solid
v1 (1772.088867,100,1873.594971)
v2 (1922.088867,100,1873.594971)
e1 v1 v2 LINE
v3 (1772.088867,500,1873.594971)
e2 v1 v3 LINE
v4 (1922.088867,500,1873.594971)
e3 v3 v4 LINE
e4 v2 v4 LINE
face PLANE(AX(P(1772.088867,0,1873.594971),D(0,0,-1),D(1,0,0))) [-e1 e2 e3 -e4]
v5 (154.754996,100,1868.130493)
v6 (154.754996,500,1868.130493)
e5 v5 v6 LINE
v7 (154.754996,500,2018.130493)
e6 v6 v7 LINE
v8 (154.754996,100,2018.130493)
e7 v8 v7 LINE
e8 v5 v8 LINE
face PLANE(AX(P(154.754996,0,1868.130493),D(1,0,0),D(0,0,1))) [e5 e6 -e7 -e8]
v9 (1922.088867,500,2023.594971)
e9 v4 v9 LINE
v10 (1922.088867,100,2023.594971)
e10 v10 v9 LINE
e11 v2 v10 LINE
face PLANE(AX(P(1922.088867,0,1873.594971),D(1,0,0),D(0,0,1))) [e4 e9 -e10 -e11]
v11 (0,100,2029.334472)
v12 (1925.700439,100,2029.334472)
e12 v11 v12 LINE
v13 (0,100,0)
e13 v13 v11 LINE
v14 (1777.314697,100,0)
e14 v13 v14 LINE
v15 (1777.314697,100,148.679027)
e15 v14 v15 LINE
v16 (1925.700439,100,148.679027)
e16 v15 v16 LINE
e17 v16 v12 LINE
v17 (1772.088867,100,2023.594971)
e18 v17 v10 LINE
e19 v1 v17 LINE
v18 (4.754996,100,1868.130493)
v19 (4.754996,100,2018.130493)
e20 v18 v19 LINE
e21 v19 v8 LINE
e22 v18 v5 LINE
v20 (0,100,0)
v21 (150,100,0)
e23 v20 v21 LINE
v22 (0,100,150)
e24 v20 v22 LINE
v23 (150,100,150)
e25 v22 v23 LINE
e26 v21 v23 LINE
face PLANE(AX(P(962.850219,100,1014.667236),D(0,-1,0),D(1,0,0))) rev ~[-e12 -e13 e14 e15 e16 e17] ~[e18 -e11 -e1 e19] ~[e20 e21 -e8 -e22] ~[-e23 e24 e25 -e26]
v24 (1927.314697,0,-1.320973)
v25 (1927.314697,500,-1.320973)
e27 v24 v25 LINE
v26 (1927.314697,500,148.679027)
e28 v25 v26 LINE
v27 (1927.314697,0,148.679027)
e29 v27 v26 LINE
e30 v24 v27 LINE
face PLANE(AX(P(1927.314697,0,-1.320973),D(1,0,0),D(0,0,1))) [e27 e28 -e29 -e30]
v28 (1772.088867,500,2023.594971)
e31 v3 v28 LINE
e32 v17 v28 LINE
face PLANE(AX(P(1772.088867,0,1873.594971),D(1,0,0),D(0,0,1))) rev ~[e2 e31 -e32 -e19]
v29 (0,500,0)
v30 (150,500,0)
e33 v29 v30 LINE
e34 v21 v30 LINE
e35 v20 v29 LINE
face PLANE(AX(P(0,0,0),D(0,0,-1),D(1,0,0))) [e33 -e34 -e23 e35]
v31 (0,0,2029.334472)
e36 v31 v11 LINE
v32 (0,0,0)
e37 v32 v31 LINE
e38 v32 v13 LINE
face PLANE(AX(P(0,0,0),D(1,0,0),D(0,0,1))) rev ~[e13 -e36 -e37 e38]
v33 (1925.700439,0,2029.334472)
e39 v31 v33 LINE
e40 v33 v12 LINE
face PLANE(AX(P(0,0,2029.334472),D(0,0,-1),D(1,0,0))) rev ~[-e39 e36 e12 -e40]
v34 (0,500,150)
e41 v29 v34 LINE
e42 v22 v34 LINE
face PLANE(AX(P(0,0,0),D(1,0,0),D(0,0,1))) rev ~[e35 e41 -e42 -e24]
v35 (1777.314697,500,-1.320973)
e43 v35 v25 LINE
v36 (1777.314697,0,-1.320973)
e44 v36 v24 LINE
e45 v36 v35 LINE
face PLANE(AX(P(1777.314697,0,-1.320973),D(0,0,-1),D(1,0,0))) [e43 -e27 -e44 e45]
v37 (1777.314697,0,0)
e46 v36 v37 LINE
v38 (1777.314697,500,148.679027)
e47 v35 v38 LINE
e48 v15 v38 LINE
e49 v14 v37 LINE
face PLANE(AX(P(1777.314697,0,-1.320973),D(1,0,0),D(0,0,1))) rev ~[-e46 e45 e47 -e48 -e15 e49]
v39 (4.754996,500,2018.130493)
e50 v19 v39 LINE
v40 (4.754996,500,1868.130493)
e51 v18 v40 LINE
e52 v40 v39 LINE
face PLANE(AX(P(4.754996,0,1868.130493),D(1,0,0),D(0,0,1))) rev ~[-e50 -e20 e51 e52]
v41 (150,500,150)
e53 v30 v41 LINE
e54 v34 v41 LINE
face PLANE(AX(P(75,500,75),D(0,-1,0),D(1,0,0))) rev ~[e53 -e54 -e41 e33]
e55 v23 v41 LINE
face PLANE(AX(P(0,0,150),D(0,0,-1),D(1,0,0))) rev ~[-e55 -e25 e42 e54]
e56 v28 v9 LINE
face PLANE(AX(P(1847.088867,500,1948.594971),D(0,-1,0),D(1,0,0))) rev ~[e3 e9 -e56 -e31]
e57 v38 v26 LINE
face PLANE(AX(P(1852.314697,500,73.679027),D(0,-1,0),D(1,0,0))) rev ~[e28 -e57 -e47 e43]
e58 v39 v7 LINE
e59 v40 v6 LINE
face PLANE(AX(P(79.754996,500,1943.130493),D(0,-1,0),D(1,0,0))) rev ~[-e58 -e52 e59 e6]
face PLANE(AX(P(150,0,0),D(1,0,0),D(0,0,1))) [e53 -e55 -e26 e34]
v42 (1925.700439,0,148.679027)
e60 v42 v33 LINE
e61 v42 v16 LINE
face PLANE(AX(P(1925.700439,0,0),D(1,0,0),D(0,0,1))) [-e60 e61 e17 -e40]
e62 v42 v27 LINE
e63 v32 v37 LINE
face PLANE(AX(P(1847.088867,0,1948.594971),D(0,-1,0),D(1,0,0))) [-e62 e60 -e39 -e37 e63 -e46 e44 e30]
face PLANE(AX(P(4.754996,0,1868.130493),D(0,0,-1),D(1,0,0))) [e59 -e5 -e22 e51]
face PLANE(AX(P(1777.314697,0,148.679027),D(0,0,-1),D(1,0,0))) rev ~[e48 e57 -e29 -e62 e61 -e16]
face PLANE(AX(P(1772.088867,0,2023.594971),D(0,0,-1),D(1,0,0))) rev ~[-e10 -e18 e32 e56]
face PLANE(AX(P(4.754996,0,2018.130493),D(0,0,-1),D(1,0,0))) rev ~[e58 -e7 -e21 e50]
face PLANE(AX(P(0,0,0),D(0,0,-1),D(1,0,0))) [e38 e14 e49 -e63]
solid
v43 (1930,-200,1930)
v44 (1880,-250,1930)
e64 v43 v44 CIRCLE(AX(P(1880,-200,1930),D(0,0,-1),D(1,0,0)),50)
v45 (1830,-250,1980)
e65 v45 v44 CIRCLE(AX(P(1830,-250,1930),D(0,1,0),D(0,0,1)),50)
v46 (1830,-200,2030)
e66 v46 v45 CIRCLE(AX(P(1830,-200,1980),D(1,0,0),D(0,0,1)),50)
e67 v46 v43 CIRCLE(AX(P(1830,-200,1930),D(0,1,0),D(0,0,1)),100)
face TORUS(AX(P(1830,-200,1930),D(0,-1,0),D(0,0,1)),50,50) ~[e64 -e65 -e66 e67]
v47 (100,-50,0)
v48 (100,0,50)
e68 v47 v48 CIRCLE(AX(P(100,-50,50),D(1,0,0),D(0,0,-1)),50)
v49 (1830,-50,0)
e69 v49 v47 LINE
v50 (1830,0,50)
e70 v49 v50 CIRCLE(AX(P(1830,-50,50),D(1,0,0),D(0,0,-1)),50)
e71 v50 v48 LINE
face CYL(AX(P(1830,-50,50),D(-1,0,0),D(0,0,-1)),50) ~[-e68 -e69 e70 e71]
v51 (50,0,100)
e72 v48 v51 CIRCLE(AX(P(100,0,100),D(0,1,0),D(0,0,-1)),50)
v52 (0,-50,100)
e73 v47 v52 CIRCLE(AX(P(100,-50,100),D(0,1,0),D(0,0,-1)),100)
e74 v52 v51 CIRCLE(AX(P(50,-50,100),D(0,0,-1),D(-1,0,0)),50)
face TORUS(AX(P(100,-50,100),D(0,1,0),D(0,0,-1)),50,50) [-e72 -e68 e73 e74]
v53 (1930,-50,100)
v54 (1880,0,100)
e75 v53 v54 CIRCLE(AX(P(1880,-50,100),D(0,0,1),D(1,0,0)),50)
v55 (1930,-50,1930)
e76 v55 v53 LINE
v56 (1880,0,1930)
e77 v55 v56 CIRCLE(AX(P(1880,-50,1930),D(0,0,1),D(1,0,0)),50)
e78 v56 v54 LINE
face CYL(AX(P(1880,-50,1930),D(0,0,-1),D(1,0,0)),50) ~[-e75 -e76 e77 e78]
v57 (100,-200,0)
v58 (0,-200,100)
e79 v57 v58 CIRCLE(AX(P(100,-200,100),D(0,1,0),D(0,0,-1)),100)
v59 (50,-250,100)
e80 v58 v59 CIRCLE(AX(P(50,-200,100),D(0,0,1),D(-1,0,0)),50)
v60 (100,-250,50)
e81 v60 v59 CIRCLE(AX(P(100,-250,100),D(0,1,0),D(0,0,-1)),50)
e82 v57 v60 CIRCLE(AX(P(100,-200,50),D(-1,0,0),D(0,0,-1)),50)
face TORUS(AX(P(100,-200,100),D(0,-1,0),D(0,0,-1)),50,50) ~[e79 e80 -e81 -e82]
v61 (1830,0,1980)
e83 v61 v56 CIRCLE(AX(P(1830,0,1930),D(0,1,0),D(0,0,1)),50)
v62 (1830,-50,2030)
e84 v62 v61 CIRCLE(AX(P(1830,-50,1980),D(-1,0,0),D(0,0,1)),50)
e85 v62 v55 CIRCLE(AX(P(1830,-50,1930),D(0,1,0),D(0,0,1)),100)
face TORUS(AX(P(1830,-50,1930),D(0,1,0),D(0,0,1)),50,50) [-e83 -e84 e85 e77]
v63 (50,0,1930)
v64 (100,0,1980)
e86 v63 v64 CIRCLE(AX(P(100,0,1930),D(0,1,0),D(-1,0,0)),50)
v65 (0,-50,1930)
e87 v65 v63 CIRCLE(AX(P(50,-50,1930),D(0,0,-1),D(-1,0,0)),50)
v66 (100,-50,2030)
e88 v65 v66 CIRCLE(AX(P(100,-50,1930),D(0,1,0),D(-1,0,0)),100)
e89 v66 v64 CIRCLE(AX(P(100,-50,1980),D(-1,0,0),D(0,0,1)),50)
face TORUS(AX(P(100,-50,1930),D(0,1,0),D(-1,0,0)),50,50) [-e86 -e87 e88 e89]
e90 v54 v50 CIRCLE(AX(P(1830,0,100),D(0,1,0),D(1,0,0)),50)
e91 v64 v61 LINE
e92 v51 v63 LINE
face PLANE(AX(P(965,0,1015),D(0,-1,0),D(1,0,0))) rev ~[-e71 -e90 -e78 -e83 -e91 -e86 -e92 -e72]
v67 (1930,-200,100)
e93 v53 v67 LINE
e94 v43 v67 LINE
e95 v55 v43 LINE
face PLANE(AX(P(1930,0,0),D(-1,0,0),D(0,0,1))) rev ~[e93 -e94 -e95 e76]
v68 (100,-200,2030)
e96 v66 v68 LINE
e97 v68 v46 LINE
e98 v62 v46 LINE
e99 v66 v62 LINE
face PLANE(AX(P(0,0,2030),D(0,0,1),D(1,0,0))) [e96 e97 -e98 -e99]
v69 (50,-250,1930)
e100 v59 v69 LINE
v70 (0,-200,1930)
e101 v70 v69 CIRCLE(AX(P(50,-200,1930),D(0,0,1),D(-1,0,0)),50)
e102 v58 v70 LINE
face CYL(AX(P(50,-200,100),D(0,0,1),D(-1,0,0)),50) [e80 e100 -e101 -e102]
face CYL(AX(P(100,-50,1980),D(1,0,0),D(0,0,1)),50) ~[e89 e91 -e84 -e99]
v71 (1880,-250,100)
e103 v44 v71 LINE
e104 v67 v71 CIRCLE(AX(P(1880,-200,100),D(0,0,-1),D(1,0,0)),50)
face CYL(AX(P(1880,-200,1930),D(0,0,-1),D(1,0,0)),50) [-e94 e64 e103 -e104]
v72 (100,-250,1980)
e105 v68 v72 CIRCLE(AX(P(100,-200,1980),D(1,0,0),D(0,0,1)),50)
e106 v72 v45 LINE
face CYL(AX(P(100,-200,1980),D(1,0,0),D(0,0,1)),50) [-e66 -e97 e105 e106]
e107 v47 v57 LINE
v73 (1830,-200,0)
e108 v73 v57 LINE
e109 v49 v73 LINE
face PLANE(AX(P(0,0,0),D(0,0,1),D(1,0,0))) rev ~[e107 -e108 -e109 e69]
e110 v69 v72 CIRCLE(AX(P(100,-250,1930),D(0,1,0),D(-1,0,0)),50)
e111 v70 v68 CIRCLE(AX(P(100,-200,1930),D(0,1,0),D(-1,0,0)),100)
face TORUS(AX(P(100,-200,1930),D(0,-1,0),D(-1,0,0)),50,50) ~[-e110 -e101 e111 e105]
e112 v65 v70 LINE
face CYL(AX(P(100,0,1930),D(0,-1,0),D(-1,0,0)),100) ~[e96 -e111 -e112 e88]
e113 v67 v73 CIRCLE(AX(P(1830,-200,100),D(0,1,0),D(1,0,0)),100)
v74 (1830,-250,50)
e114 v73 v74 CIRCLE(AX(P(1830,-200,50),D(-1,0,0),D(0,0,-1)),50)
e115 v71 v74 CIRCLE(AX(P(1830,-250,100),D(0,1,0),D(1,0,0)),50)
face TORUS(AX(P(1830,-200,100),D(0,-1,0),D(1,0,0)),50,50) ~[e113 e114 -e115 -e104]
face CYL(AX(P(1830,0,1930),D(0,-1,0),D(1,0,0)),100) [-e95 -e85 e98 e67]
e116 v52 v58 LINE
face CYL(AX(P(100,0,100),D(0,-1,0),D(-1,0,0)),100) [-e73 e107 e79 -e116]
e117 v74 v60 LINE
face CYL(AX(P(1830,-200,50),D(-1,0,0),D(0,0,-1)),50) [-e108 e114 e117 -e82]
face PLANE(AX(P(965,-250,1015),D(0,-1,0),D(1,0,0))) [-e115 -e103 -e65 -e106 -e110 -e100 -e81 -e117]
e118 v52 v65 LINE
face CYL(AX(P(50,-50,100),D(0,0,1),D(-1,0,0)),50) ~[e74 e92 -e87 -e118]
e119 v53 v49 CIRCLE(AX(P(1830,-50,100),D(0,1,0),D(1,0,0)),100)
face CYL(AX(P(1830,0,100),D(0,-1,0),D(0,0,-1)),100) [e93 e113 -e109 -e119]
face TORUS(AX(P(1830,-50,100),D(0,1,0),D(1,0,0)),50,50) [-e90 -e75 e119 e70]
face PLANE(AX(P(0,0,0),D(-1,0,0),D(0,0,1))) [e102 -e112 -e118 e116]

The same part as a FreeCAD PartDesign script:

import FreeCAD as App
import Part
import Sketcher


def edges_at(feature, points):
    """Names of the edges that pass closest to the given points."""
    edges = feature.Shape.Edges
    near = lambda p: min(range(len(edges)), key=lambda i: edges[i].distToShape(Part.Vertex(*p))[0])
    return sorted({f"Edge{near(p) + 1}" for p in points})


def add_polygon(sketch, points):
    """Adds a closed chain of lines whose ends are joined by coincident constraints."""
    first, n = sketch.GeometryCount, len(points)
    for a, b in zip(points, points[1:] + points[:1]):
        sketch.addGeometry(Part.LineSegment(App.Vector(*a, 0), App.Vector(*b, 0)), False)
    for i in range(n):
        sketch.addConstraint(Sketcher.Constraint("Coincident", first + i, 2, first + (i + 1) % n, 1))

doc = App.newDocument("Part")
body = doc.addObject("PartDesign::Body", "Body")

sketch1 = body.newObject("Sketcher::SketchObject", "Sketch")
sketch1.AttachmentSupport = (doc.getObject("XZ_Plane"), [""])
sketch1.MapMode = "FlatFace"
add_polygon(sketch1, [(0, 2030), (0, 0), (1930, 0), (1930, 2030)])
sketch1.addConstraint(Sketcher.Constraint("Vertical", 0))
sketch1.addConstraint(Sketcher.Constraint("Horizontal", 1))
sketch1.addConstraint(Sketcher.Constraint("Vertical", 2))
sketch1.addConstraint(Sketcher.Constraint("Horizontal", 3))
sketch1.addConstraint(Sketcher.Constraint("Coincident", 0, 2, -1, 1))
sketch1.addConstraint(Sketcher.Constraint("DistanceX", 1, 1, 1, 2, 1930.0))
sketch1.addConstraint(Sketcher.Constraint("DistanceY", 0, 2, 0, 1, 2030.0))
pad1 = body.newObject("PartDesign::Pad", "Pad")
pad1.Profile = sketch1
pad1.Length = 250
doc.recompute()

fillet = body.newObject("PartDesign::Fillet", "Fillet")
fillet.Base = (pad1, edges_at(pad1, [
    (0, -125, 2030),
    (1930, -125, 2030),
    (1930, -125, 0),
    (0, -125, 0),
]))
fillet.Radius = 100
doc.recompute()

fillet2 = body.newObject("PartDesign::Fillet", "Fillet001")
fillet2.Base = (fillet, edges_at(fillet, [
    (0, -250, 1015),
    (29.289, -250, 29.289),
    (965, -250, 0),
    (1900.711, -250, 29.289),
    (1930, -250, 1015),
    (1900.711, -250, 2000.711),
    (965, -250, 2030),
    (29.289, -250, 2000.711),
    (0, 0, 1015),
    (29.289, 0, 2000.711),
    (965, 0, 2030),
    (1900.711, 0, 2000.711),
    (1930, 0, 1015),
    (1900.711, 0, 29.289),
    (965, 0, 0),
    (29.289, 0, 29.289),
]))
fillet2.Radius = 50
body2 = doc.addObject("PartDesign::Body", "Body001")

sketch2 = body2.newObject("Sketcher::SketchObject", "Sketch001")
sketch2.AttachmentSupport = (doc.getObject("XZ_Plane001"), [""])
sketch2.MapMode = "FlatFace"
add_polygon(sketch2, [(0, 2029), (0, 0), (1926, 0), (1926, 2029)])
sketch2.addConstraint(Sketcher.Constraint("Vertical", 0))
sketch2.addConstraint(Sketcher.Constraint("Horizontal", 1))
sketch2.addConstraint(Sketcher.Constraint("Vertical", 2))
sketch2.addConstraint(Sketcher.Constraint("Horizontal", 3))
sketch2.addConstraint(Sketcher.Constraint("Coincident", 0, 2, -1, 1))
sketch2.addConstraint(Sketcher.Constraint("DistanceX", 1, 1, 1, 2, 1925.700439))
sketch2.addConstraint(Sketcher.Constraint("DistanceY", 0, 2, 0, 1, 2029.334473))
pad2 = body2.newObject("PartDesign::Pad", "Pad001")
pad2.Profile = sketch2
pad2.Length = 100
pad2.Reversed = True

sketch3 = body2.newObject("Sketcher::SketchObject", "Sketch002")
sketch3.AttachmentSupport = (doc.getObject("XZ_Plane001"), [""])
sketch3.MapMode = "FlatFace"
add_polygon(sketch3, [(0, 150), (0, 0), (150, 0), (150, 150)])
sketch3.addConstraint(Sketcher.Constraint("Vertical", 0))
sketch3.addConstraint(Sketcher.Constraint("Horizontal", 1))
sketch3.addConstraint(Sketcher.Constraint("Vertical", 2))
sketch3.addConstraint(Sketcher.Constraint("Horizontal", 3))
sketch3.addConstraint(Sketcher.Constraint("Coincident", 0, 2, -1, 1))
sketch3.addConstraint(Sketcher.Constraint("Equal", 3, 0))
sketch3.addConstraint(Sketcher.Constraint("DistanceX", 1, 1, 1, 2, 150.0))
pad3 = body2.newObject("PartDesign::Pad", "Pad002")
pad3.Profile = sketch3
pad3.Length = 500
pad3.Reversed = True

sketch4 = body2.newObject("Sketcher::SketchObject", "Sketch003")
sketch4.AttachmentSupport = (doc.getObject("XZ_Plane001"), [""])
sketch4.MapMode = "FlatFace"
add_polygon(sketch4, [(1777, 149), (1777, -1), (1927, -1), (1927, 149)])
sketch4.addConstraint(Sketcher.Constraint("Vertical", 0))
sketch4.addConstraint(Sketcher.Constraint("Horizontal", 1))
sketch4.addConstraint(Sketcher.Constraint("Vertical", 2))
sketch4.addConstraint(Sketcher.Constraint("Horizontal", 3))
sketch4.addConstraint(Sketcher.Constraint("Equal", 3, 0))
sketch4.addConstraint(Sketcher.Constraint("DistanceX", 1, 1, 1, 2, 150.0))
sketch4.addConstraint(Sketcher.Constraint("DistanceX", -1, 1, 0, 2, 1777.314697))
sketch4.addConstraint(Sketcher.Constraint("DistanceY", 0, 2, -1, 1, 1.320973))
pad4 = body2.newObject("PartDesign::Pad", "Pad003")
pad4.Profile = sketch4
pad4.Length = 500
pad4.Reversed = True

sketch5 = body2.newObject("Sketcher::SketchObject", "Sketch004")
sketch5.AttachmentSupport = (doc.getObject("XZ_Plane001"), [""])
sketch5.MapMode = "FlatFace"
add_polygon(sketch5, [(5, 2018), (5, 1868), (155, 1868), (155, 2018)])
sketch5.addConstraint(Sketcher.Constraint("Vertical", 0))
sketch5.addConstraint(Sketcher.Constraint("Horizontal", 1))
sketch5.addConstraint(Sketcher.Constraint("Vertical", 2))
sketch5.addConstraint(Sketcher.Constraint("Horizontal", 3))
sketch5.addConstraint(Sketcher.Constraint("Equal", 3, 0))
sketch5.addConstraint(Sketcher.Constraint("DistanceX", 1, 1, 1, 2, 150.0))
sketch5.addConstraint(Sketcher.Constraint("DistanceX", -1, 1, 0, 2, 4.754996))
sketch5.addConstraint(Sketcher.Constraint("DistanceY", -1, 1, 0, 2, 1868.130493))
pad5 = body2.newObject("PartDesign::Pad", "Pad004")
pad5.Profile = sketch5
pad5.Length = 500
pad5.Reversed = True

sketch6 = body2.newObject("Sketcher::SketchObject", "Sketch005")
sketch6.AttachmentSupport = (doc.getObject("XZ_Plane001"), [""])
sketch6.MapMode = "FlatFace"
add_polygon(sketch6, [(1772, 2024), (1772, 1874), (1922, 1874), (1922, 2024)])
sketch6.addConstraint(Sketcher.Constraint("Vertical", 0))
sketch6.addConstraint(Sketcher.Constraint("Horizontal", 1))
sketch6.addConstraint(Sketcher.Constraint("Vertical", 2))
sketch6.addConstraint(Sketcher.Constraint("Horizontal", 3))
sketch6.addConstraint(Sketcher.Constraint("Equal", 3, 0))
sketch6.addConstraint(Sketcher.Constraint("DistanceX", 1, 1, 1, 2, 150.0))
sketch6.addConstraint(Sketcher.Constraint("DistanceY", -1, 1, 0, 2, 1873.594971))
sketch6.addConstraint(Sketcher.Constraint("DistanceX", -1, 1, 0, 2, 1772.088867))
pad6 = body2.newObject("PartDesign::Pad", "Pad005")
pad6.Profile = sketch6
pad6.Length = 500
pad6.Reversed = True

doc.recompute()
